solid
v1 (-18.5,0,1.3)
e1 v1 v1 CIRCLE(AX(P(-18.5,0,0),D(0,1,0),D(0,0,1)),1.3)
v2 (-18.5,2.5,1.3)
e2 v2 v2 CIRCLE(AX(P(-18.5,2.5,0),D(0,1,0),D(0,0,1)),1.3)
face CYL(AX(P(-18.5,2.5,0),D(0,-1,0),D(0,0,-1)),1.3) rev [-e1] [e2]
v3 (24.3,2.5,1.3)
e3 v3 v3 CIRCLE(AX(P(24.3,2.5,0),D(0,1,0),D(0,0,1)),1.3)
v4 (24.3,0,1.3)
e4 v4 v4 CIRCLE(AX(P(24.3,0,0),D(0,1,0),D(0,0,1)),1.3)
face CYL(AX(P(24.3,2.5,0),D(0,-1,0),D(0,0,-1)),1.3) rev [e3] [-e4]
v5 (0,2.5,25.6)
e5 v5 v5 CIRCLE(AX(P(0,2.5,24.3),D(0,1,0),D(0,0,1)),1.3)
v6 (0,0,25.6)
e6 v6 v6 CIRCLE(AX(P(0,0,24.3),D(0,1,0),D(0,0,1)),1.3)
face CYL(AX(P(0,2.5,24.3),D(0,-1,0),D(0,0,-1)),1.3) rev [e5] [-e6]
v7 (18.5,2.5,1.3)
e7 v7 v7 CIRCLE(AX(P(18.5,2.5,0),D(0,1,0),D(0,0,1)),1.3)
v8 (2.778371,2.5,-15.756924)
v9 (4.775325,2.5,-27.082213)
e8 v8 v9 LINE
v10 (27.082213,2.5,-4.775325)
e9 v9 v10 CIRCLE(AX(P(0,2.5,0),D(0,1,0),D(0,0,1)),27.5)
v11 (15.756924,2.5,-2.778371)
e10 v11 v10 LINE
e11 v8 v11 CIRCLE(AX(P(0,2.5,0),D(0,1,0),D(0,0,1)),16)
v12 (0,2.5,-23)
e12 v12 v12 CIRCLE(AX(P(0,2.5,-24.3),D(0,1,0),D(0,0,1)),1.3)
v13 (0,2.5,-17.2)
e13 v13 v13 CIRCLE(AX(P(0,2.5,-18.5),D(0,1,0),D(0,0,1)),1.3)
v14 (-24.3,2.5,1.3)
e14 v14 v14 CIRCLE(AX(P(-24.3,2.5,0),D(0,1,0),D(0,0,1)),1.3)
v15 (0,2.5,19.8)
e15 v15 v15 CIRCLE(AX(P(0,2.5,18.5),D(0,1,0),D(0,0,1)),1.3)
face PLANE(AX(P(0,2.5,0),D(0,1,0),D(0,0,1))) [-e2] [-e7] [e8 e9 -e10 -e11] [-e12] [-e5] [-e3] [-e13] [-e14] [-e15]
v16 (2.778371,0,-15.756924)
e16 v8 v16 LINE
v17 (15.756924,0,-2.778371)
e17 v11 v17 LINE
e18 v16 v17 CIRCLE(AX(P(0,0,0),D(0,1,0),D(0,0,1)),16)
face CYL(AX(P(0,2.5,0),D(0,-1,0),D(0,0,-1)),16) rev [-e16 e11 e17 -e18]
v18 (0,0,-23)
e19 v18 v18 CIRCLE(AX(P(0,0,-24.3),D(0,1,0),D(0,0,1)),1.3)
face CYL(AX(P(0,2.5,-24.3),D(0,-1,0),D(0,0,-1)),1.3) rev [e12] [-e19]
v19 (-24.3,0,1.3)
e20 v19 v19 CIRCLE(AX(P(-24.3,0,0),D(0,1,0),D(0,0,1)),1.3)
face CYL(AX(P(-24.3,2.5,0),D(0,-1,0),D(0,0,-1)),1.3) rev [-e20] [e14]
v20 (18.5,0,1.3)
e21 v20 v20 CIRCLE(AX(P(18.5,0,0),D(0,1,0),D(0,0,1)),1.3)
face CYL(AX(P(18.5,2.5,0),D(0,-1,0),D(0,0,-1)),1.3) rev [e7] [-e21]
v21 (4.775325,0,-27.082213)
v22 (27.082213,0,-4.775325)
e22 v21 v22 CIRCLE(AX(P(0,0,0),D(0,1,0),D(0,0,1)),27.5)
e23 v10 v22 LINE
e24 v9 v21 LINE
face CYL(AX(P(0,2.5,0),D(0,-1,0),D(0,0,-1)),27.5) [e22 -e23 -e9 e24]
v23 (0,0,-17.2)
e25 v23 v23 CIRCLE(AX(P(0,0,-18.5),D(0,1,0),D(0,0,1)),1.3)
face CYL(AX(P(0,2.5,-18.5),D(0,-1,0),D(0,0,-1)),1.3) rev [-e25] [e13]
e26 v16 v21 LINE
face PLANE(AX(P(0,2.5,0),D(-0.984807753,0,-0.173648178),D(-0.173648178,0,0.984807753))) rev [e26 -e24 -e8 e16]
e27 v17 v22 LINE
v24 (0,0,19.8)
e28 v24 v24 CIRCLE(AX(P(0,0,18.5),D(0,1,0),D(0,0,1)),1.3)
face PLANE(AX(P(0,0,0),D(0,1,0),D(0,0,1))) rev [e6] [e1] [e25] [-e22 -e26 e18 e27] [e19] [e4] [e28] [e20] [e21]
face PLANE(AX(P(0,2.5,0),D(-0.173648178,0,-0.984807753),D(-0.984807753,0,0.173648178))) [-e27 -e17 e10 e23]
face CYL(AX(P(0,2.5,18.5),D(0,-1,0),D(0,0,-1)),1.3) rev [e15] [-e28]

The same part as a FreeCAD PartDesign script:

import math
import FreeCAD as App
import Part
import Sketcher
Q = App.Units.Quantity

doc = App.newDocument("Part")
params = doc.addObject("Spreadsheet::Sheet", "Params")
for row, (alias, value) in enumerate([
    ("sketch1_radius", "16 mm"),
    ("sketch1_diameter", "2.6 mm"),
    ("sketch1_radius2", "27.5 mm"),
    ("pad1_length", "2.5 mm"),
], start=1):
    params.set(f"A{row}", alias)
    params.set(f"B{row}", "=" + value)
    params.setAlias(f"B{row}", alias)

body = doc.addObject("PartDesign::Body", "Body")

sketch1 = body.newObject("Sketcher::SketchObject", "Sketch")
sketch1.AttachmentSupport = (doc.getObject("XZ_Plane"), [""])
sketch1.MapMode = "FlatFace"
sketch1.addGeometry([
    Part.ArcOfCircle(Part.Circle(App.Vector(0, 0, 0), App.Vector(0, 0, 1), 16), math.radians(0), math.radians(280)),
    Part.LineSegment(App.Vector(2.8, -15.8, 0), App.Vector(4.8, -27.1, 0)),
    Part.ArcOfCircle(Part.Circle(App.Vector(0, 0, 0), App.Vector(0, 0, 1), 27.5), math.radians(0), math.radians(280)),
    Part.ArcOfCircle(Part.Circle(App.Vector(0, 0, 0), App.Vector(0, 0, 1), 27.5), math.radians(-10), math.radians(0)),
    Part.LineSegment(App.Vector(27.1, -4.8, 0), App.Vector(15.8, -2.8, 0)),
    Part.ArcOfCircle(Part.Circle(App.Vector(0, 0, 0), App.Vector(0, 0, 1), 16), math.radians(-10), math.radians(0)),
    Part.Circle(App.Vector(0, 24.3, 0), App.Vector(0, 0, 1), 1.3),
    Part.Circle(App.Vector(0, 18.5, 0), App.Vector(0, 0, 1), 1.3),
    Part.Circle(App.Vector(-24.3, 0, 0), App.Vector(0, 0, 1), 1.3),
    Part.Circle(App.Vector(-18.5, 0, 0), App.Vector(0, 0, 1), 1.3),
    Part.Circle(App.Vector(18.5, 0, 0), App.Vector(0, 0, 1), 1.3),
    Part.Circle(App.Vector(24.3, 0, 0), App.Vector(0, 0, 1), 1.3),
    Part.Circle(App.Vector(0, -18.5, 0), App.Vector(0, 0, 1), 1.3),
    Part.Circle(App.Vector(0, -24.3, 0), App.Vector(0, 0, 1), 1.3),
], False)
sketch1.addConstraint([
    Sketcher.Constraint("Coincident", 0, 2, 1, 1),
    Sketcher.Constraint("Coincident", 1, 2, 2, 2),
    Sketcher.Constraint("Tangent", 2, 1, 3, 2),
    Sketcher.Constraint("Coincident", 3, 1, 4, 1),
    Sketcher.Constraint("Coincident", 4, 2, 5, 1),
    Sketcher.Constraint("Tangent", 5, 2, 0, 1),
    Sketcher.Constraint("Coincident", 0, 3, -1, 1),
    Sketcher.Constraint("Coincident", 2, 3, -1, 1),
    Sketcher.Constraint("Equal", 2, 3),
    Sketcher.Constraint("Equal", 0, 5),
    Sketcher.Constraint("Equal", 6, 7),
    Sketcher.Constraint("Equal", 7, 8),
    Sketcher.Constraint("Equal", 8, 9),
    Sketcher.Constraint("Equal", 9, 10),
    Sketcher.Constraint("Equal", 10, 11),
    Sketcher.Constraint("Equal", 11, 12),
    Sketcher.Constraint("Equal", 12, 13),
    Sketcher.Constraint("Symmetric", 9, 3, 10, 3, -1, 1),
    Sketcher.Constraint("Symmetric", 8, 3, 11, 3, -1, 1),
    Sketcher.Constraint("Symmetric", 7, 3, 12, 3, -1, 1),
    Sketcher.Constraint("Symmetric", 6, 3, 13, 3, -1, 1),
    Sketcher.Constraint("PointOnObject", 6, 3, -2),
    Sketcher.Constraint("PointOnObject", 7, 3, -2),
    Sketcher.Constraint("PointOnObject", 8, 3, -1),
    Sketcher.Constraint("PointOnObject", 9, 3, -1),
    Sketcher.Constraint("PointOnObject", 2, 1, -1),
    Sketcher.Constraint("PointOnObject", 5, 2, -1),
    Sketcher.Constraint("Radius", 0, Q("16 mm")),
    Sketcher.Constraint("Diameter", 6, Q("2.6 mm")),
    Sketcher.Constraint("Radius", 2, Q("27.5 mm")),
    Sketcher.Constraint("Angle", 1, Q("-80 deg")),
    Sketcher.Constraint("Angle", 4, Q("170 deg")),
    Sketcher.Constraint("DistanceX", 10, 3, 2, 1, Q("9 mm")),
    Sketcher.Constraint("DistanceY", -1, 1, 6, 3, Q("24.3 mm")),
    Sketcher.Constraint("DistanceY", -1, 1, 7, 3, Q("18.5 mm")),
    Sketcher.Constraint("DistanceX", 8, 3, -1, 1, Q("24.3 mm")),
    Sketcher.Constraint("DistanceY", 0, 2, 3, 1, Q("10.981599 mm")),
    Sketcher.Constraint("DistanceX", -1, 1, 0, 2, Q("2.778371 mm")),
])
sketch1.setExpression("Constraints[27]", "Params.sketch1_radius")
sketch1.setExpression("Constraints[28]", "Params.sketch1_diameter")
sketch1.setExpression("Constraints[29]", "Params.sketch1_radius2")
pad1 = body.newObject("PartDesign::Pad", "Pad")
pad1.Profile = sketch1
pad1.setExpression("Length", "Params.pad1_length")
pad1.Reversed = True

doc.recompute()
